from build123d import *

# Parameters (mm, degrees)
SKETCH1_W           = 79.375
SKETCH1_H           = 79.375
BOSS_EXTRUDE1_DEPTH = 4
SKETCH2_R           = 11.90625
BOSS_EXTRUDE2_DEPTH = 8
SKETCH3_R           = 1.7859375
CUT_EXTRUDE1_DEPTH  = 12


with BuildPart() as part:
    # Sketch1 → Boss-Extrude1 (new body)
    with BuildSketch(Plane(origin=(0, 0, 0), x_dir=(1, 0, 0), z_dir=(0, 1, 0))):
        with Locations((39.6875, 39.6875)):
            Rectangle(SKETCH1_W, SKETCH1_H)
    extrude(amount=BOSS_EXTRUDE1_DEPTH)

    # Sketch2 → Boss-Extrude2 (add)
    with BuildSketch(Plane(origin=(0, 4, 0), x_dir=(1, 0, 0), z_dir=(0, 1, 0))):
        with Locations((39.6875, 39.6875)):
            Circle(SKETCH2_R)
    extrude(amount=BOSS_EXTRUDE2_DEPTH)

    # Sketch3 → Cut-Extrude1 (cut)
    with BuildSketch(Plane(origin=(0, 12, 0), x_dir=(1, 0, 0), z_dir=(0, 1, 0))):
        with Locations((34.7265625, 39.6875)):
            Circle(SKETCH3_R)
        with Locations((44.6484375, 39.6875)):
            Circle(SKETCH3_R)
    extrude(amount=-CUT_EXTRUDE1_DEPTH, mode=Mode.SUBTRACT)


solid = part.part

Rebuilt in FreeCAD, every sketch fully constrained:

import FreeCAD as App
import Part
import Sketcher

V = App.Vector


def add_polygon(sketch, points):
    """Adds a closed chain of lines whose ends are joined by coincident constraints."""
    first, n = sketch.GeometryCount, len(points)
    for a, b in zip(points, points[1:] + points[:1]):
        sketch.addGeometry(Part.LineSegment(App.Vector(*a, 0), App.Vector(*b, 0)), False)
    for i in range(n):
        sketch.addConstraint(Sketcher.Constraint("Coincident", first + i, 2, first + (i + 1) % n, 1))

doc = App.newDocument("Part")
body = doc.addObject("PartDesign::Body", "Body")

# Sketch on XZ plane
sketch1 = body.newObject("Sketcher::SketchObject", "Sketch")
sketch1.AttachmentSupport = (doc.getObject("XZ_Plane"), [""])
sketch1.MapMode = "FlatFace"
add_polygon(sketch1, [(0, -79), (0, 0), (79, 0), (79, -79)])  # lines 0-3
sketch1.addConstraint([
    Sketcher.Constraint("Vertical", 0),
    Sketcher.Constraint("Horizontal", 1),
    Sketcher.Constraint("Vertical", 2),
    Sketcher.Constraint("Horizontal", 3),
    Sketcher.Constraint("Coincident", 0, 2, -1, 1),
    Sketcher.Constraint("Equal", 3, 0),
    Sketcher.Constraint("DistanceX", 1, 1, 1, 2, 79.375),
])
pad1 = body.newObject("PartDesign::Pad", "Pad")
pad1.Profile = sketch1
pad1.Length = 4
pad1.Reversed = True

# Sketch on XZ plane
sketch2 = body.newObject("Sketcher::SketchObject", "Sketch001")
sketch2.AttachmentSupport = (doc.getObject("XZ_Plane"), [""])
sketch2.MapMode = "FlatFace"
sketch2.AttachmentOffset = App.Placement(V(0, 0, -4), App.Rotation())
sketch2.addGeometry(Part.Circle(V(40, -40, 0), V(0, 0, 1), 12), False)
sketch2.addConstraint([
    Sketcher.Constraint("Diameter", 0, 23.8125),
    Sketcher.Constraint("DistanceX", -1, 1, 0, 3, 39.6875),
    Sketcher.Constraint("DistanceY", 0, 3, -1, 1, 39.6875),
])
pad2 = body.newObject("PartDesign::Pad", "Pad001")
pad2.Profile = sketch2
pad2.Length = 8
pad2.Reversed = True

# Sketch on XZ plane
sketch3 = body.newObject("Sketcher::SketchObject", "Sketch002")
sketch3.AttachmentSupport = (doc.getObject("XZ_Plane"), [""])
sketch3.MapMode = "FlatFace"
sketch3.AttachmentOffset = App.Placement(V(0, 0, -12), App.Rotation())
sketch3.addGeometry([
    Part.Circle(V(34.7, -39.7, 0), V(0, 0, 1), 1.8),
    Part.Circle(V(44.6, -39.7, 0), V(0, 0, 1), 1.8),
], False)
sketch3.addConstraint([
    Sketcher.Constraint("Equal", 0, 1),
    Sketcher.Constraint("Horizontal", 0, 3, 1, 3),
    Sketcher.Constraint("Diameter", 0, 3.571875),
    Sketcher.Constraint("DistanceY", 0, 3, -1, 1, 39.6875),
    Sketcher.Constraint("DistanceX", -1, 1, 0, 3, 34.726562),
    Sketcher.Constraint("DistanceX", -1, 1, 1, 3, 44.648438),
])
pocket1 = body.newObject("PartDesign::Pocket", "Pocket")
pocket1.Profile = sketch3
pocket1.Length = 12
pocket1.Reversed = True

doc.recompute()
